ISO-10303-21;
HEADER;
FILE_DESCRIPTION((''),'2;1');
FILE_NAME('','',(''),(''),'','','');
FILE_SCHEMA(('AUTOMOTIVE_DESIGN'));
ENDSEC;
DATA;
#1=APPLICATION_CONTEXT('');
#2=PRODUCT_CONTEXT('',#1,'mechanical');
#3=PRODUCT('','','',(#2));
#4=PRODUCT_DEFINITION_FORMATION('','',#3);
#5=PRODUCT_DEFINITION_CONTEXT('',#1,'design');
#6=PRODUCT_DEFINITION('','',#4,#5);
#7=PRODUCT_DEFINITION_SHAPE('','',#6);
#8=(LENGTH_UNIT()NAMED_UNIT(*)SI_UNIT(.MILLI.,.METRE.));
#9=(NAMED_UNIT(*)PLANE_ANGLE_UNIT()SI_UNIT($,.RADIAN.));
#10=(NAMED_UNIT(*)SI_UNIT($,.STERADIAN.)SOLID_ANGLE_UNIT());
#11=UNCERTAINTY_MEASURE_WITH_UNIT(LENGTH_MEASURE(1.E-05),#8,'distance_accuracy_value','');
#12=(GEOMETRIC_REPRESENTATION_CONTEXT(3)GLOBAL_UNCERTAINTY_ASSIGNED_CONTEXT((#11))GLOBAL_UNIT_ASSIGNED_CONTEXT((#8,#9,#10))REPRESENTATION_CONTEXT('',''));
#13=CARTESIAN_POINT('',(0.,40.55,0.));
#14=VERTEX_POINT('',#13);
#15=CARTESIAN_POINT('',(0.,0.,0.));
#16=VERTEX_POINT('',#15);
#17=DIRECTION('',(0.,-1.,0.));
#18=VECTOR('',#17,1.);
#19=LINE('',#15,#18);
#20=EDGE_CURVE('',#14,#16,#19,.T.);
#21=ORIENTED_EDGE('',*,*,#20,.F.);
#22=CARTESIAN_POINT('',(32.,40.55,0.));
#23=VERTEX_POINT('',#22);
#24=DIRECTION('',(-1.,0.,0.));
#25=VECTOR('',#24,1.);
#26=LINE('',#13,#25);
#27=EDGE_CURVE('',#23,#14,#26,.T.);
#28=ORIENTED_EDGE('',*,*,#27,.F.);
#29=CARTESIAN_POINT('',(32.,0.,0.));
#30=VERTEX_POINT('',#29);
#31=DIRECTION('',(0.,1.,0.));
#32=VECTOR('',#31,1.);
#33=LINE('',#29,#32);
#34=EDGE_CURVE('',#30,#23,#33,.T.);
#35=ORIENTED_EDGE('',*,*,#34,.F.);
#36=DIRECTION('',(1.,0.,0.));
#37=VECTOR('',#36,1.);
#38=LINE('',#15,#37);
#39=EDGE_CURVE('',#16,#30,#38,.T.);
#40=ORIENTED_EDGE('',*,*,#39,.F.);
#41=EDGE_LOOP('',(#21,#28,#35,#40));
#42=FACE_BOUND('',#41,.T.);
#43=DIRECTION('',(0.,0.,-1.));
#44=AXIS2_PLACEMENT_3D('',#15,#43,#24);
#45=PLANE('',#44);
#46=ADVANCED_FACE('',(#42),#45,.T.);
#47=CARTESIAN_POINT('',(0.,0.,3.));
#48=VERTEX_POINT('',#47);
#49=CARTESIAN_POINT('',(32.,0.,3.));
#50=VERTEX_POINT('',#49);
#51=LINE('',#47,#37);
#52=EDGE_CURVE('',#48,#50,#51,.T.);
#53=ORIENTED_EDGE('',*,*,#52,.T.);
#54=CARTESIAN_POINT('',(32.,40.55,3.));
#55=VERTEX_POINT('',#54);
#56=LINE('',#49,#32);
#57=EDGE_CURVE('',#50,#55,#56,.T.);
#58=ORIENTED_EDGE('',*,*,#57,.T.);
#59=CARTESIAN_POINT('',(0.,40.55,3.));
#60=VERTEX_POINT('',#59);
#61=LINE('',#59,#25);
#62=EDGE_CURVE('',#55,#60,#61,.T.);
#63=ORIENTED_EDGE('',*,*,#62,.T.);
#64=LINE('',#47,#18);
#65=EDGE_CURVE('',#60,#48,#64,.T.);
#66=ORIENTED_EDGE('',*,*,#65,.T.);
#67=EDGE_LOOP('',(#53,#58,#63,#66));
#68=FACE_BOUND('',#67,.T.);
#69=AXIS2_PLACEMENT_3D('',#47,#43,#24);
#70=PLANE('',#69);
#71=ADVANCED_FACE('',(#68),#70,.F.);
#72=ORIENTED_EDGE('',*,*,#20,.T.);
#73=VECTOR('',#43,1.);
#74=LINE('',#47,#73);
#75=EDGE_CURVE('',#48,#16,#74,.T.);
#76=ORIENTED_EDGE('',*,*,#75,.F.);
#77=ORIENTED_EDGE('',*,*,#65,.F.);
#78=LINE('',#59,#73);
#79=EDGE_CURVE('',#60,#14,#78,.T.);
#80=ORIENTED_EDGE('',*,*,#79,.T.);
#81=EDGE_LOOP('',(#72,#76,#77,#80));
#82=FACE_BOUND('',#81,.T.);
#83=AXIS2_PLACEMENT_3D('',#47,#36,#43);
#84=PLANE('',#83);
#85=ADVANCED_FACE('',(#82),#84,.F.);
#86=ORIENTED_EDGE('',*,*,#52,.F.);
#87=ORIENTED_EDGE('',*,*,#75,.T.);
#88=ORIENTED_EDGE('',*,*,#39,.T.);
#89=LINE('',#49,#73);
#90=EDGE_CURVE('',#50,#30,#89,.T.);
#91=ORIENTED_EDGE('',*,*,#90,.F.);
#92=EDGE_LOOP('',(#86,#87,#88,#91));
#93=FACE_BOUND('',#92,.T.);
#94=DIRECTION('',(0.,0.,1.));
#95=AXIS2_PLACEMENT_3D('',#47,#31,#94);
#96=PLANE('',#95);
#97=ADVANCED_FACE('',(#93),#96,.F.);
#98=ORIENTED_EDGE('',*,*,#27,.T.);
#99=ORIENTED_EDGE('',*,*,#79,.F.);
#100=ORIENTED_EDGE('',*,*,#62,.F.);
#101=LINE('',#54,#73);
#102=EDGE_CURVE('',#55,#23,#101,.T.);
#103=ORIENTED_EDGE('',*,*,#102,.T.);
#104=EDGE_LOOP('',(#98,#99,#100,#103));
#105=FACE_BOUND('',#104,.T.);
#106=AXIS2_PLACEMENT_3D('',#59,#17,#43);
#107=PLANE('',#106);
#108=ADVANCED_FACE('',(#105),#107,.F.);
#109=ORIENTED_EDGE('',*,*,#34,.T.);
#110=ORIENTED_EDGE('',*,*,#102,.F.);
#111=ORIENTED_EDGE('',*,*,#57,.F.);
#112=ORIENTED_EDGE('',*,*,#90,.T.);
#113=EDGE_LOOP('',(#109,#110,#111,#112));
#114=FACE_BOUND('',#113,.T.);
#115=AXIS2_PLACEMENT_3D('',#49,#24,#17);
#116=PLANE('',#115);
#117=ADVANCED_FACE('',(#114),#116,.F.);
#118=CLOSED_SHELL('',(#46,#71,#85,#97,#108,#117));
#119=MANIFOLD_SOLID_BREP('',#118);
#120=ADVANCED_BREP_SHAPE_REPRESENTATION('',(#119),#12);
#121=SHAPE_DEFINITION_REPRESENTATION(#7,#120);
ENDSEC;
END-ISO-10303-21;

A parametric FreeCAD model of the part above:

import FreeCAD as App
import Part
import Sketcher
from FreeCAD import Vector
Q = App.Units.Quantity


def add_polygon(sketch, points):
    """Adds a closed chain of lines whose ends are joined by coincident constraints."""
    first, n = sketch.GeometryCount, len(points)
    for a, b in zip(points, points[1:] + points[:1]):
        sketch.addGeometry(Part.LineSegment(App.Vector(*a, 0), App.Vector(*b, 0)), False)
    for i in range(n):
        sketch.addConstraint(Sketcher.Constraint("Coincident", first + i, 2, first + (i + 1) % n, 1))

doc = App.newDocument("Part")
body = doc.addObject("PartDesign::Body", "Body")

# Sketch on XY plane
sketch1 = doc.addObject("Sketcher::SketchObject", "Sketch")
body.addObject(sketch1)
sketch1.AttachmentSupport = (doc.XY_Plane, [""])
sketch1.MapMode = "FlatFace"
add_polygon(sketch1, [(0, 41), (0, 0), (32, 0), (32, 41)])  # lines 0-3
sketch1.addConstraint(Sketcher.Constraint("Vertical", 0))
sketch1.addConstraint(Sketcher.Constraint("Horizontal", 1))
sketch1.addConstraint(Sketcher.Constraint("Vertical", 2))
sketch1.addConstraint(Sketcher.Constraint("Horizontal", 3))
sketch1.addConstraint(Sketcher.Constraint("Coincident", 0, 2, -1, 1))
sketch1.addConstraint(Sketcher.Constraint("DistanceX", 1, 1, 1, 2, Q("32 mm")))
sketch1.addConstraint(Sketcher.Constraint("DistanceY", 0, 2, 0, 1, Q("40.55 mm")))
pad1 = doc.addObject("PartDesign::Pad", "Pad")
body.addObject(pad1)
pad1.Profile = sketch1
pad1.Length = 3

doc.recompute()
